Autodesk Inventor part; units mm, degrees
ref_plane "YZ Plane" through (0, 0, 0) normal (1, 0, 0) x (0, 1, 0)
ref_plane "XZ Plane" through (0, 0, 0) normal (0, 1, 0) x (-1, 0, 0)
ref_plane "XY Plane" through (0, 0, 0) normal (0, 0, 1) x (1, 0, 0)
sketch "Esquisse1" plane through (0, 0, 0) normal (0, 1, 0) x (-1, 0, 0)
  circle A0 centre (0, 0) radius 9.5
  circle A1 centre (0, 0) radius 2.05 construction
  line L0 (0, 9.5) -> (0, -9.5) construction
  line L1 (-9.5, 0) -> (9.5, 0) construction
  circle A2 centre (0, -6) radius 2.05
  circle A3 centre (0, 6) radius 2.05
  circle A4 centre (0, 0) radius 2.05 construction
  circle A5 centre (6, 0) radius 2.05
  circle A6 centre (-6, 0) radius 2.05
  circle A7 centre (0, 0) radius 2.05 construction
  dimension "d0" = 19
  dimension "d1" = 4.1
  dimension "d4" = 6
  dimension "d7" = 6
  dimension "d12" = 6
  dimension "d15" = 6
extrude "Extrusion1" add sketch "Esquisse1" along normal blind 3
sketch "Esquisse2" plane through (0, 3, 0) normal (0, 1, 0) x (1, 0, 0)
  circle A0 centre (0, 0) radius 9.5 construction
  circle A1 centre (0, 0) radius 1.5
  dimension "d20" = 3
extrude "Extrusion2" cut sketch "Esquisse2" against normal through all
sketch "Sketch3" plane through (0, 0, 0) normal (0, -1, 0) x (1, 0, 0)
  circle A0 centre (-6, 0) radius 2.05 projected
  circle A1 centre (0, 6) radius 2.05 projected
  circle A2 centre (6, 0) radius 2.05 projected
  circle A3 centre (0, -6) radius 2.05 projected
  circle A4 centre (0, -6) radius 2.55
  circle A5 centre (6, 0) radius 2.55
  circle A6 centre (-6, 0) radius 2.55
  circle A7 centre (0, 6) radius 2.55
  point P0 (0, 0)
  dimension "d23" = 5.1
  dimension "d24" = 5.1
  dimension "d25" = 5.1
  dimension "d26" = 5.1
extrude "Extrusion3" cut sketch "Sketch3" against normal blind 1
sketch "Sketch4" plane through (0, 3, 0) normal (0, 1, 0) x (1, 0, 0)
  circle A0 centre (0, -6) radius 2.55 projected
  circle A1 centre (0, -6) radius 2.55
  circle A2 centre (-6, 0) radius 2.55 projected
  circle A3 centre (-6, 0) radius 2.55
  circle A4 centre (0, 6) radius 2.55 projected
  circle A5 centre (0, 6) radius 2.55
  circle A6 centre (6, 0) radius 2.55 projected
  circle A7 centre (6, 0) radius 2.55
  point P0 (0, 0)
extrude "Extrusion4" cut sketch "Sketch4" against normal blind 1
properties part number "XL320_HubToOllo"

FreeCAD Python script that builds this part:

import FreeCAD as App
import Part
import Sketcher
from FreeCAD import Vector

doc = App.newDocument("Part")
params = doc.addObject("Spreadsheet::Sheet", "Params")
for row, (alias, value) in enumerate([
    ("sketch1_diameter", "19 mm"),
    ("sketch1_diameter2", "4.1 mm"),
    ("pad1_length", "3 mm"),
    ("sketch2_diameter", "3 mm"),
    ("sketch3_diameter", "5.1 mm"),
    ("sketch3_diameter2", "4.1 mm"),
    ("pocket2_length", "1 mm"),
    ("sketch4_diameter", "5.1 mm"),
    ("pocket3_length", "1 mm"),
], start=1):
    params.set(f"A{row}", alias)
    params.set(f"B{row}", "=" + value)
    params.setAlias(f"B{row}", alias)

body = doc.addObject("PartDesign::Body", "Body")

sketch1 = doc.addObject("Sketcher::SketchObject", "Sketch")
body.addObject(sketch1)
sketch1.AttachmentSupport = (doc.XZ_Plane, [""])
sketch1.MapMode = "FlatFace"
sketch1.addGeometry([
    Part.Circle(Vector(0, 0, 0), Vector(0, 0, 1), 9.5),
    Part.Circle(Vector(0, -6, 0), Vector(0, 0, 1), 2),
    Part.Circle(Vector(6, 0, 0), Vector(0, 0, 1), 2),
    Part.Circle(Vector(-6, 0, 0), Vector(0, 0, 1), 2),
    Part.Circle(Vector(0, 6, 0), Vector(0, 0, 1), 2),
], False)
sketch1.addConstraint([
    Sketcher.Constraint("Coincident", 0, 3, -1, 1),
    Sketcher.Constraint("Equal", 1, 2),
    Sketcher.Constraint("Equal", 2, 3),
    Sketcher.Constraint("Equal", 3, 4),
    Sketcher.Constraint("Symmetric", 2, 3, 3, 3, -1, 1),
    Sketcher.Constraint("Symmetric", 1, 3, 4, 3, -1, 1),
    Sketcher.Constraint("PointOnObject", 1, 3, -2),
    Sketcher.Constraint("PointOnObject", 2, 3, -1),
    Sketcher.Constraint("Diameter", 0, 19.0),
    Sketcher.Constraint("Diameter", 1, 4.1),
    Sketcher.Constraint("DistanceY", 1, 3, -1, 1, 6.0),
    Sketcher.Constraint("DistanceX", -1, 1, 2, 3, 6.0),
])
sketch1.setExpression("Constraints[8]", "Params.sketch1_diameter")
sketch1.setExpression("Constraints[9]", "Params.sketch1_diameter2")
pad1 = doc.addObject("PartDesign::Pad", "Pad")
body.addObject(pad1)
pad1.Profile = sketch1
pad1.setExpression("Length", "Params.pad1_length")
pad1.Reversed = True

sketch2 = doc.addObject("Sketcher::SketchObject", "Sketch001")
body.addObject(sketch2)
sketch2.AttachmentSupport = (doc.XZ_Plane, [""])
sketch2.MapMode = "FlatFace"
sketch2.AttachmentOffset = App.Placement(Vector(0, 0, -3), App.Rotation())
sketch2.addGeometry(Part.Circle(Vector(0, 0, 0), Vector(0, 0, 1), 1.5), False)
sketch2.addConstraint([
    Sketcher.Constraint("Coincident", 0, 3, -1, 1),
    Sketcher.Constraint("Diameter", 0, 3.0),
])
sketch2.setExpression("Constraints[1]", "Params.sketch2_diameter")
pocket1 = doc.addObject("PartDesign::Pocket", "Pocket")
body.addObject(pocket1)
pocket1.Profile = sketch2
pocket1.Type = "ThroughAll"
pocket1.Reversed = True

sketch3 = doc.addObject("Sketcher::SketchObject", "Sketch002")
body.addObject(sketch3)
sketch3.AttachmentSupport = (doc.XZ_Plane, [""])
sketch3.MapMode = "FlatFace"
sketch3.addGeometry([
    Part.Circle(Vector(0, -6, 0), Vector(0, 0, 1), 2.5),
    Part.Circle(Vector(0, -6, 0), Vector(0, 0, 1), 2),
    Part.Circle(Vector(6, 0, 0), Vector(0, 0, 1), 2.5),
    Part.Circle(Vector(6, 0, 0), Vector(0, 0, 1), 2),
    Part.Circle(Vector(-6, 0, 0), Vector(0, 0, 1), 2.5),
    Part.Circle(Vector(-6, 0, 0), Vector(0, 0, 1), 2),
    Part.Circle(Vector(0, 6, 0), Vector(0, 0, 1), 2.5),
    Part.Circle(Vector(0, 6, 0), Vector(0, 0, 1), 2),
], False)
sketch3.addConstraint([
    Sketcher.Constraint("Coincident", 1, 3, 0, 3),
    Sketcher.Constraint("Coincident", 3, 3, 2, 3),
    Sketcher.Constraint("Coincident", 5, 3, 4, 3),
    Sketcher.Constraint("Coincident", 7, 3, 6, 3),
    Sketcher.Constraint("Equal", 0, 2),
    Sketcher.Constraint("Equal", 1, 3),
    Sketcher.Constraint("Equal", 2, 4),
    Sketcher.Constraint("Equal", 3, 5),
    Sketcher.Constraint("Equal", 4, 6),
    Sketcher.Constraint("Equal", 5, 7),
    Sketcher.Constraint("Symmetric", 2, 3, 4, 3, -1, 1),
    Sketcher.Constraint("Symmetric", 0, 3, 6, 3, -1, 1),
    Sketcher.Constraint("PointOnObject", 0, 3, -2),
    Sketcher.Constraint("PointOnObject", 2, 3, -1),
    Sketcher.Constraint("Diameter", 0, 5.1),
    Sketcher.Constraint("Diameter", 1, 4.1),
    Sketcher.Constraint("DistanceY", 0, 3, -1, 1, 6.0),
    Sketcher.Constraint("DistanceX", -1, 1, 2, 3, 6.0),
])
sketch3.setExpression("Constraints[14]", "Params.sketch3_diameter")
sketch3.setExpression("Constraints[15]", "Params.sketch3_diameter2")
pocket2 = doc.addObject("PartDesign::Pocket", "Pocket001")
body.addObject(pocket2)
pocket2.Profile = sketch3
pocket2.setExpression("Length", "Params.pocket2_length")

sketch4 = doc.addObject("Sketcher::SketchObject", "Sketch003")
body.addObject(sketch4)
sketch4.AttachmentSupport = (doc.XZ_Plane, [""])
sketch4.MapMode = "FlatFace"
sketch4.AttachmentOffset = App.Placement(Vector(0, 0, -3), App.Rotation())
sketch4.addGeometry([
    Part.Circle(Vector(0, 6, 0), Vector(0, 0, 1), 2.5),
    Part.Circle(Vector(-6, 0, 0), Vector(0, 0, 1), 2.5),
    Part.Circle(Vector(0, -6, 0), Vector(0, 0, 1), 2.5),
    Part.Circle(Vector(6, 0, 0), Vector(0, 0, 1), 2.5),
], False)
sketch4.addConstraint([
    Sketcher.Constraint("Equal", 0, 1),
    Sketcher.Constraint("Equal", 1, 2),
    Sketcher.Constraint("Equal", 2, 3),
    Sketcher.Constraint("Symmetric", 0, 3, 2, 3, -1, 1),
    Sketcher.Constraint("Symmetric", 1, 3, 3, 3, -1, 1),
    Sketcher.Constraint("PointOnObject", 0, 3, -2),
    Sketcher.Constraint("PointOnObject", 1, 3, -1),
    Sketcher.Constraint("Diameter", 0, 5.1),
    Sketcher.Constraint("DistanceY", -1, 1, 0, 3, 6.0),
    Sketcher.Constraint("DistanceX", 1, 3, -1, 1, 6.0),
])
sketch4.setExpression("Constraints[7]", "Params.sketch4_diameter")
pocket3 = doc.addObject("PartDesign::Pocket", "Pocket002")
body.addObject(pocket3)
pocket3.Profile = sketch4
pocket3.setExpression("Length", "Params.pocket3_length")
pocket3.Reversed = True

doc.recompute()
